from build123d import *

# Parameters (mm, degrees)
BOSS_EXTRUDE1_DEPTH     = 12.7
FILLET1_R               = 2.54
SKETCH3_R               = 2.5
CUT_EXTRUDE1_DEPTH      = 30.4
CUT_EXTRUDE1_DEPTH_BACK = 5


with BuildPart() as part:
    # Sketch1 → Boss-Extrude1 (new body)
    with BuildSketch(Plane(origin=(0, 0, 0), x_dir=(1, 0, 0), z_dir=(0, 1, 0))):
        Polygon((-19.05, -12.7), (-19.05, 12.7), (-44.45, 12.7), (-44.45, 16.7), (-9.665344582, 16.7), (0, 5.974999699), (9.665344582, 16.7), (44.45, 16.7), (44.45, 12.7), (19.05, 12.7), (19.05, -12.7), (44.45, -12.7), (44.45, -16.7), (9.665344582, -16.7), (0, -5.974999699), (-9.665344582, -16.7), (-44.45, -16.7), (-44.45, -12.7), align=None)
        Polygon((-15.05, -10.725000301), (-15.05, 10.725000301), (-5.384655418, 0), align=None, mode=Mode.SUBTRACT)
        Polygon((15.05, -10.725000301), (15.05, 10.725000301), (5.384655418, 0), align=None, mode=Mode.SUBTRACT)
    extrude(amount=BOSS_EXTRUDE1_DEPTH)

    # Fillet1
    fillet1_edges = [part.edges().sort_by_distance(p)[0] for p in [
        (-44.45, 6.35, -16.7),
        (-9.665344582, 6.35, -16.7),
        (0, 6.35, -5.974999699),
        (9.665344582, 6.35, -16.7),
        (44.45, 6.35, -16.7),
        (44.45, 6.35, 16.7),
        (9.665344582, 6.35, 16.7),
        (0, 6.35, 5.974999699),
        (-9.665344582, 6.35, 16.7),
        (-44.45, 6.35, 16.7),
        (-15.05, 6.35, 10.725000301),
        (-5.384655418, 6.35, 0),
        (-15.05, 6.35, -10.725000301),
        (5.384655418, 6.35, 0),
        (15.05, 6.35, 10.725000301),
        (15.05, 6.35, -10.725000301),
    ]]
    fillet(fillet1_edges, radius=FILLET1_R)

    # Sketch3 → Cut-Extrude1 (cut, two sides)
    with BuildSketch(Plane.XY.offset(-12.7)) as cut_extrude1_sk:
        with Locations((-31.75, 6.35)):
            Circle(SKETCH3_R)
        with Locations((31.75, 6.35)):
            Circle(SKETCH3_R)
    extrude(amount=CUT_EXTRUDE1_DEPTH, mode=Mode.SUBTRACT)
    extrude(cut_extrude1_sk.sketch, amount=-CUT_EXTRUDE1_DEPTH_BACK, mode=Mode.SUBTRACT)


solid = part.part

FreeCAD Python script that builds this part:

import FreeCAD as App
import Part
import Sketcher
from FreeCAD import Vector
Q = App.Units.Quantity


def edges_at(feature, points):
    """Names of the edges that pass closest to the given points."""
    edges = feature.Shape.Edges
    near = lambda p: min(range(len(edges)), key=lambda i: edges[i].distToShape(Part.Vertex(*p))[0])
    return sorted({f"Edge{near(p) + 1}" for p in points})


def add_polygon(sketch, points):
    """Adds a closed chain of lines whose ends are joined by coincident constraints."""
    first, n = sketch.GeometryCount, len(points)
    for a, b in zip(points, points[1:] + points[:1]):
        sketch.addGeometry(Part.LineSegment(App.Vector(*a, 0), App.Vector(*b, 0)), False)
    for i in range(n):
        sketch.addConstraint(Sketcher.Constraint("Coincident", first + i, 2, first + (i + 1) % n, 1))

doc = App.newDocument("Part")
params = doc.addObject("Spreadsheet::Sheet", "Params")
for row, (alias, value) in enumerate([
    ("sketch1_height", "4 mm"),
    ("sketch1_width", "25.4 mm"),
    ("sketch1_height2", "21.450001 mm"),
    ("pad1_length", "12.7 mm"),
    ("fillet_radius", "2.54 mm"),
    ("sketch2_diameter", "5 mm"),
], start=1):
    params.set(f"A{row}", alias)
    params.set(f"B{row}", "=" + value)
    params.setAlias(f"B{row}", alias)

body = doc.addObject("PartDesign::Body", "Body")

# Sketch on XZ plane
sketch1 = body.newObject("Sketcher::SketchObject", "Sketch")
sketch1.AttachmentSupport = (doc.getObject("XZ_Plane"), [""])
sketch1.MapMode = "FlatFace"
add_polygon(sketch1, [(-19.05, -12.7), (-19.05, 12.7), (-44.45, 12.7), (-44.45, 16.7), (-9.665345, 16.7), (0, 5.975), (9.665345, 16.7), (44.45, 16.7), (44.45, 12.7), (19.05, 12.7), (19.05, -12.7), (44.45, -12.7), (44.45, -16.7), (9.665345, -16.7), (0, -5.975), (-9.665345, -16.7), (-44.45, -16.7), (-44.45, -12.7)])  # lines 0-17
add_polygon(sketch1, [(15.05, 10.725), (5.384655, 0), (15.05, -10.725)])  # lines 18-20
add_polygon(sketch1, [(-15.05, 10.725), (-15.05, -10.725), (-5.384655, 0)])  # lines 21-23
sketch1.addConstraint(Sketcher.Constraint("Vertical", 0))
sketch1.addConstraint(Sketcher.Constraint("Horizontal", 1))
sketch1.addConstraint(Sketcher.Constraint("Vertical", 2))
sketch1.addConstraint(Sketcher.Constraint("Horizontal", 3))
sketch1.addConstraint(Sketcher.Constraint("Horizontal", 6))
sketch1.addConstraint(Sketcher.Constraint("Vertical", 7))
sketch1.addConstraint(Sketcher.Constraint("Horizontal", 8))
sketch1.addConstraint(Sketcher.Constraint("Vertical", 9))
sketch1.addConstraint(Sketcher.Constraint("Horizontal", 10))
sketch1.addConstraint(Sketcher.Constraint("Vertical", 11))
sketch1.addConstraint(Sketcher.Constraint("Horizontal", 12))
sketch1.addConstraint(Sketcher.Constraint("Horizontal", 15))
sketch1.addConstraint(Sketcher.Constraint("Vertical", 16))
sketch1.addConstraint(Sketcher.Constraint("Horizontal", 17))
sketch1.addConstraint(Sketcher.Constraint("Vertical", 20))
sketch1.addConstraint(Sketcher.Constraint("Vertical", 21))
sketch1.addConstraint(Sketcher.Constraint("Symmetric", 0, 2, 9, 2, -1, 1))
sketch1.addConstraint(Sketcher.Constraint("Symmetric", 2, 2, 11, 2, -1, 1))
sketch1.addConstraint(Sketcher.Constraint("Symmetric", 4, 2, 13, 2, -1, 1))
sketch1.addConstraint(Sketcher.Constraint("Symmetric", 5, 2, 14, 2, -1, 1))
sketch1.addConstraint(Sketcher.Constraint("Symmetric", 7, 2, 16, 2, -1, 1))
sketch1.addConstraint(Sketcher.Constraint("Symmetric", 20, 2, 21, 2, -1, 1))
sketch1.addConstraint(Sketcher.Constraint("Symmetric", 18, 2, 22, 2, -1, 1))
sketch1.addConstraint(Sketcher.Constraint("Symmetric", 3, 2, 5, 2, -2))
sketch1.addConstraint(Sketcher.Constraint("Symmetric", 1, 2, 7, 2, -2))
sketch1.addConstraint(Sketcher.Constraint("PointOnObject", 4, 2, -2))
sketch1.addConstraint(Sketcher.Constraint("PointOnObject", 18, 2, -1))
sketch1.addConstraint(Sketcher.Constraint("Parallel", 4, 13))
sketch1.addConstraint(Sketcher.Constraint("Parallel", 14, 18))
sketch1.addConstraint(Sketcher.Constraint("Parallel", 13, 19))
sketch1.addConstraint(Sketcher.Constraint("Parallel", 19, 23))
sketch1.addConstraint(Sketcher.Constraint("Equal", 17, 0))
sketch1.addConstraint(Sketcher.Constraint("Equal", 14, 18))
sketch1.addConstraint(Sketcher.Constraint("DistanceY", 2, 1, 2, 2, Q("4 mm")))
sketch1.addConstraint(Sketcher.Constraint("DistanceX", 1, 2, 1, 1, Q("25.4 mm")))
sketch1.addConstraint(Sketcher.Constraint("DistanceX", 19, 2, 9, 2, Q("4 mm")))
sketch1.addConstraint(Sketcher.Constraint("DistanceY", 20, 1, 20, 2, Q("21.450001 mm")))
sketch1.addConstraint(Sketcher.Constraint("DistanceX", 0, 2, 6, 2, Q("63.5 mm")))
sketch1.addConstraint(Sketcher.Constraint("DistanceX", 3, 1, 3, 2, Q("34.784655 mm")))
sketch1.setExpression("Constraints[57]", "Params.sketch1_height")
sketch1.setExpression("Constraints[58]", "Params.sketch1_width")
sketch1.setExpression("Constraints[60]", "Params.sketch1_height2")
pad1 = body.newObject("PartDesign::Pad", "Pad")
pad1.Profile = sketch1
pad1.setExpression("Length", "Params.pad1_length")
pad1.Reversed = True
doc.recompute()

fillet = body.newObject("PartDesign::Fillet", "Fillet")
fillet.Base = (pad1, edges_at(pad1, [
    (-44.45, 6.35, -16.7),
    (-9.665, 6.35, -16.7),
    (0, 6.35, -5.975),
    (9.665, 6.35, -16.7),
    (44.45, 6.35, -16.7),
    (44.45, 6.35, 16.7),
    (9.665, 6.35, 16.7),
    (0, 6.35, 5.975),
    (-9.665, 6.35, 16.7),
    (-44.45, 6.35, 16.7),
    (-15.05, 6.35, 10.725),
    (-5.385, 6.35, 0),
    (-15.05, 6.35, -10.725),
    (5.385, 6.35, 0),
    (15.05, 6.35, 10.725),
    (15.05, 6.35, -10.725),
]))
fillet.setExpression("Radius", "Params.fillet_radius")

# Sketch on XY plane
sketch2 = body.newObject("Sketcher::SketchObject", "Sketch001")
sketch2.AttachmentSupport = (doc.getObject("XY_Plane"), [""])
sketch2.MapMode = "FlatFace"
sketch2.AttachmentOffset = App.Placement(Vector(0, 0, -12.7), App.Rotation())
sketch2.addGeometry(Part.Circle(Vector(-31.75, 6.35, 0), Vector(0, 0, 1), 2.5), False)
sketch2.addGeometry(Part.Circle(Vector(31.75, 6.35, 0), Vector(0, 0, 1), 2.5), False)
sketch2.addConstraint(Sketcher.Constraint("Equal", 0, 1))
sketch2.addConstraint(Sketcher.Constraint("Symmetric", 0, 3, 1, 3, -2))
sketch2.addConstraint(Sketcher.Constraint("Diameter", 0, Q("5 mm")))
sketch2.addConstraint(Sketcher.Constraint("DistanceX", 0, 3, 1, 3, Q("63.5 mm")))
sketch2.addConstraint(Sketcher.Constraint("DistanceY", -1, 1, 0, 3, Q("6.35 mm")))
sketch2.setExpression("Constraints[2]", "Params.sketch2_diameter")
pocket1 = body.newObject("PartDesign::Pocket", "Pocket")
pocket1.Profile = sketch2
pocket1.Type = "ThroughAll"
pocket1.Midplane = True

doc.recompute()
